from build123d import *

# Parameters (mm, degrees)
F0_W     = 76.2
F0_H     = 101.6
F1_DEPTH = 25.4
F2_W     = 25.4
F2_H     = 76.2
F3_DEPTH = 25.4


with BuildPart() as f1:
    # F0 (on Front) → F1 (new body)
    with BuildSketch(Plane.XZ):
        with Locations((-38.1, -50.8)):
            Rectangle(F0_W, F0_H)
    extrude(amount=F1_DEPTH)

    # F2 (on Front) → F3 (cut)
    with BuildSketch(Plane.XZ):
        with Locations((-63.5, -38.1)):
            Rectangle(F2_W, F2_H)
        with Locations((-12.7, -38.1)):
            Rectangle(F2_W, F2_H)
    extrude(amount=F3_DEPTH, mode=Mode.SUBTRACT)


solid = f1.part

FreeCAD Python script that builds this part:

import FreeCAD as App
import Part
import Sketcher
from FreeCAD import Vector
Q = App.Units.Quantity


def add_polygon(sketch, points):
    """Adds a closed chain of lines whose ends are joined by coincident constraints."""
    first, n = sketch.GeometryCount, len(points)
    for a, b in zip(points, points[1:] + points[:1]):
        sketch.addGeometry(Part.LineSegment(App.Vector(*a, 0), App.Vector(*b, 0)), False)
    for i in range(n):
        sketch.addConstraint(Sketcher.Constraint("Coincident", first + i, 2, first + (i + 1) % n, 1))

doc = App.newDocument("Part")
body = doc.addObject("PartDesign::Body", "Body")

sketch1 = doc.addObject("Sketcher::SketchObject", "Sketch")
body.addObject(sketch1)
sketch1.AttachmentSupport = (doc.XZ_Plane, [""])
sketch1.MapMode = "FlatFace"
add_polygon(sketch1, [(-76, 0), (-76, -102), (0, -102), (0, 0)])
sketch1.addConstraint([
    Sketcher.Constraint("Vertical", 0),
    Sketcher.Constraint("Horizontal", 1),
    Sketcher.Constraint("Vertical", 2),
    Sketcher.Constraint("Horizontal", 3),
    Sketcher.Constraint("Coincident", 2, 2, -1, 1),
    Sketcher.Constraint("DistanceX", 1, 1, 1, 2, Q("3 in")),
    Sketcher.Constraint("DistanceY", 0, 2, 0, 1, Q("4 in")),
])
pad1 = doc.addObject("PartDesign::Pad", "Pad")
body.addObject(pad1)
pad1.Profile = sketch1
pad1.Length = Q("1 in")

sketch2 = doc.addObject("Sketcher::SketchObject", "Sketch001")
body.addObject(sketch2)
sketch2.AttachmentSupport = (doc.XZ_Plane, [""])
sketch2.MapMode = "FlatFace"
add_polygon(sketch2, [(-76, 0), (-76, -76), (-51, -76), (-51, 0)])
add_polygon(sketch2, [(-25, 0), (-25, -76), (0, -76), (0, 0)])
sketch2.addConstraint([
    Sketcher.Constraint("Vertical", 0),
    Sketcher.Constraint("Horizontal", 1),
    Sketcher.Constraint("Vertical", 2),
    Sketcher.Constraint("Horizontal", 3),
    Sketcher.Constraint("Vertical", 4),
    Sketcher.Constraint("Horizontal", 5),
    Sketcher.Constraint("Vertical", 6),
    Sketcher.Constraint("Horizontal", 7),
    Sketcher.Constraint("Coincident", 6, 2, -1, 1),
    Sketcher.Constraint("PointOnObject", 2, 2, -1),
    Sketcher.Constraint("Horizontal", 1, 2, 4, 2),
    Sketcher.Constraint("Equal", 3, 5),
    Sketcher.Constraint("DistanceX", 1, 1, 1, 2, Q("1 in")),
    Sketcher.Constraint("DistanceY", 0, 2, 0, 1, Q("3 in")),
    Sketcher.Constraint("DistanceX", 0, 2, -1, 1, Q("3 in")),
])
pocket1 = doc.addObject("PartDesign::Pocket", "Pocket")
body.addObject(pocket1)
pocket1.Profile = sketch2
pocket1.Length = Q("1 in")
pocket1.Reversed = True

doc.recompute()
